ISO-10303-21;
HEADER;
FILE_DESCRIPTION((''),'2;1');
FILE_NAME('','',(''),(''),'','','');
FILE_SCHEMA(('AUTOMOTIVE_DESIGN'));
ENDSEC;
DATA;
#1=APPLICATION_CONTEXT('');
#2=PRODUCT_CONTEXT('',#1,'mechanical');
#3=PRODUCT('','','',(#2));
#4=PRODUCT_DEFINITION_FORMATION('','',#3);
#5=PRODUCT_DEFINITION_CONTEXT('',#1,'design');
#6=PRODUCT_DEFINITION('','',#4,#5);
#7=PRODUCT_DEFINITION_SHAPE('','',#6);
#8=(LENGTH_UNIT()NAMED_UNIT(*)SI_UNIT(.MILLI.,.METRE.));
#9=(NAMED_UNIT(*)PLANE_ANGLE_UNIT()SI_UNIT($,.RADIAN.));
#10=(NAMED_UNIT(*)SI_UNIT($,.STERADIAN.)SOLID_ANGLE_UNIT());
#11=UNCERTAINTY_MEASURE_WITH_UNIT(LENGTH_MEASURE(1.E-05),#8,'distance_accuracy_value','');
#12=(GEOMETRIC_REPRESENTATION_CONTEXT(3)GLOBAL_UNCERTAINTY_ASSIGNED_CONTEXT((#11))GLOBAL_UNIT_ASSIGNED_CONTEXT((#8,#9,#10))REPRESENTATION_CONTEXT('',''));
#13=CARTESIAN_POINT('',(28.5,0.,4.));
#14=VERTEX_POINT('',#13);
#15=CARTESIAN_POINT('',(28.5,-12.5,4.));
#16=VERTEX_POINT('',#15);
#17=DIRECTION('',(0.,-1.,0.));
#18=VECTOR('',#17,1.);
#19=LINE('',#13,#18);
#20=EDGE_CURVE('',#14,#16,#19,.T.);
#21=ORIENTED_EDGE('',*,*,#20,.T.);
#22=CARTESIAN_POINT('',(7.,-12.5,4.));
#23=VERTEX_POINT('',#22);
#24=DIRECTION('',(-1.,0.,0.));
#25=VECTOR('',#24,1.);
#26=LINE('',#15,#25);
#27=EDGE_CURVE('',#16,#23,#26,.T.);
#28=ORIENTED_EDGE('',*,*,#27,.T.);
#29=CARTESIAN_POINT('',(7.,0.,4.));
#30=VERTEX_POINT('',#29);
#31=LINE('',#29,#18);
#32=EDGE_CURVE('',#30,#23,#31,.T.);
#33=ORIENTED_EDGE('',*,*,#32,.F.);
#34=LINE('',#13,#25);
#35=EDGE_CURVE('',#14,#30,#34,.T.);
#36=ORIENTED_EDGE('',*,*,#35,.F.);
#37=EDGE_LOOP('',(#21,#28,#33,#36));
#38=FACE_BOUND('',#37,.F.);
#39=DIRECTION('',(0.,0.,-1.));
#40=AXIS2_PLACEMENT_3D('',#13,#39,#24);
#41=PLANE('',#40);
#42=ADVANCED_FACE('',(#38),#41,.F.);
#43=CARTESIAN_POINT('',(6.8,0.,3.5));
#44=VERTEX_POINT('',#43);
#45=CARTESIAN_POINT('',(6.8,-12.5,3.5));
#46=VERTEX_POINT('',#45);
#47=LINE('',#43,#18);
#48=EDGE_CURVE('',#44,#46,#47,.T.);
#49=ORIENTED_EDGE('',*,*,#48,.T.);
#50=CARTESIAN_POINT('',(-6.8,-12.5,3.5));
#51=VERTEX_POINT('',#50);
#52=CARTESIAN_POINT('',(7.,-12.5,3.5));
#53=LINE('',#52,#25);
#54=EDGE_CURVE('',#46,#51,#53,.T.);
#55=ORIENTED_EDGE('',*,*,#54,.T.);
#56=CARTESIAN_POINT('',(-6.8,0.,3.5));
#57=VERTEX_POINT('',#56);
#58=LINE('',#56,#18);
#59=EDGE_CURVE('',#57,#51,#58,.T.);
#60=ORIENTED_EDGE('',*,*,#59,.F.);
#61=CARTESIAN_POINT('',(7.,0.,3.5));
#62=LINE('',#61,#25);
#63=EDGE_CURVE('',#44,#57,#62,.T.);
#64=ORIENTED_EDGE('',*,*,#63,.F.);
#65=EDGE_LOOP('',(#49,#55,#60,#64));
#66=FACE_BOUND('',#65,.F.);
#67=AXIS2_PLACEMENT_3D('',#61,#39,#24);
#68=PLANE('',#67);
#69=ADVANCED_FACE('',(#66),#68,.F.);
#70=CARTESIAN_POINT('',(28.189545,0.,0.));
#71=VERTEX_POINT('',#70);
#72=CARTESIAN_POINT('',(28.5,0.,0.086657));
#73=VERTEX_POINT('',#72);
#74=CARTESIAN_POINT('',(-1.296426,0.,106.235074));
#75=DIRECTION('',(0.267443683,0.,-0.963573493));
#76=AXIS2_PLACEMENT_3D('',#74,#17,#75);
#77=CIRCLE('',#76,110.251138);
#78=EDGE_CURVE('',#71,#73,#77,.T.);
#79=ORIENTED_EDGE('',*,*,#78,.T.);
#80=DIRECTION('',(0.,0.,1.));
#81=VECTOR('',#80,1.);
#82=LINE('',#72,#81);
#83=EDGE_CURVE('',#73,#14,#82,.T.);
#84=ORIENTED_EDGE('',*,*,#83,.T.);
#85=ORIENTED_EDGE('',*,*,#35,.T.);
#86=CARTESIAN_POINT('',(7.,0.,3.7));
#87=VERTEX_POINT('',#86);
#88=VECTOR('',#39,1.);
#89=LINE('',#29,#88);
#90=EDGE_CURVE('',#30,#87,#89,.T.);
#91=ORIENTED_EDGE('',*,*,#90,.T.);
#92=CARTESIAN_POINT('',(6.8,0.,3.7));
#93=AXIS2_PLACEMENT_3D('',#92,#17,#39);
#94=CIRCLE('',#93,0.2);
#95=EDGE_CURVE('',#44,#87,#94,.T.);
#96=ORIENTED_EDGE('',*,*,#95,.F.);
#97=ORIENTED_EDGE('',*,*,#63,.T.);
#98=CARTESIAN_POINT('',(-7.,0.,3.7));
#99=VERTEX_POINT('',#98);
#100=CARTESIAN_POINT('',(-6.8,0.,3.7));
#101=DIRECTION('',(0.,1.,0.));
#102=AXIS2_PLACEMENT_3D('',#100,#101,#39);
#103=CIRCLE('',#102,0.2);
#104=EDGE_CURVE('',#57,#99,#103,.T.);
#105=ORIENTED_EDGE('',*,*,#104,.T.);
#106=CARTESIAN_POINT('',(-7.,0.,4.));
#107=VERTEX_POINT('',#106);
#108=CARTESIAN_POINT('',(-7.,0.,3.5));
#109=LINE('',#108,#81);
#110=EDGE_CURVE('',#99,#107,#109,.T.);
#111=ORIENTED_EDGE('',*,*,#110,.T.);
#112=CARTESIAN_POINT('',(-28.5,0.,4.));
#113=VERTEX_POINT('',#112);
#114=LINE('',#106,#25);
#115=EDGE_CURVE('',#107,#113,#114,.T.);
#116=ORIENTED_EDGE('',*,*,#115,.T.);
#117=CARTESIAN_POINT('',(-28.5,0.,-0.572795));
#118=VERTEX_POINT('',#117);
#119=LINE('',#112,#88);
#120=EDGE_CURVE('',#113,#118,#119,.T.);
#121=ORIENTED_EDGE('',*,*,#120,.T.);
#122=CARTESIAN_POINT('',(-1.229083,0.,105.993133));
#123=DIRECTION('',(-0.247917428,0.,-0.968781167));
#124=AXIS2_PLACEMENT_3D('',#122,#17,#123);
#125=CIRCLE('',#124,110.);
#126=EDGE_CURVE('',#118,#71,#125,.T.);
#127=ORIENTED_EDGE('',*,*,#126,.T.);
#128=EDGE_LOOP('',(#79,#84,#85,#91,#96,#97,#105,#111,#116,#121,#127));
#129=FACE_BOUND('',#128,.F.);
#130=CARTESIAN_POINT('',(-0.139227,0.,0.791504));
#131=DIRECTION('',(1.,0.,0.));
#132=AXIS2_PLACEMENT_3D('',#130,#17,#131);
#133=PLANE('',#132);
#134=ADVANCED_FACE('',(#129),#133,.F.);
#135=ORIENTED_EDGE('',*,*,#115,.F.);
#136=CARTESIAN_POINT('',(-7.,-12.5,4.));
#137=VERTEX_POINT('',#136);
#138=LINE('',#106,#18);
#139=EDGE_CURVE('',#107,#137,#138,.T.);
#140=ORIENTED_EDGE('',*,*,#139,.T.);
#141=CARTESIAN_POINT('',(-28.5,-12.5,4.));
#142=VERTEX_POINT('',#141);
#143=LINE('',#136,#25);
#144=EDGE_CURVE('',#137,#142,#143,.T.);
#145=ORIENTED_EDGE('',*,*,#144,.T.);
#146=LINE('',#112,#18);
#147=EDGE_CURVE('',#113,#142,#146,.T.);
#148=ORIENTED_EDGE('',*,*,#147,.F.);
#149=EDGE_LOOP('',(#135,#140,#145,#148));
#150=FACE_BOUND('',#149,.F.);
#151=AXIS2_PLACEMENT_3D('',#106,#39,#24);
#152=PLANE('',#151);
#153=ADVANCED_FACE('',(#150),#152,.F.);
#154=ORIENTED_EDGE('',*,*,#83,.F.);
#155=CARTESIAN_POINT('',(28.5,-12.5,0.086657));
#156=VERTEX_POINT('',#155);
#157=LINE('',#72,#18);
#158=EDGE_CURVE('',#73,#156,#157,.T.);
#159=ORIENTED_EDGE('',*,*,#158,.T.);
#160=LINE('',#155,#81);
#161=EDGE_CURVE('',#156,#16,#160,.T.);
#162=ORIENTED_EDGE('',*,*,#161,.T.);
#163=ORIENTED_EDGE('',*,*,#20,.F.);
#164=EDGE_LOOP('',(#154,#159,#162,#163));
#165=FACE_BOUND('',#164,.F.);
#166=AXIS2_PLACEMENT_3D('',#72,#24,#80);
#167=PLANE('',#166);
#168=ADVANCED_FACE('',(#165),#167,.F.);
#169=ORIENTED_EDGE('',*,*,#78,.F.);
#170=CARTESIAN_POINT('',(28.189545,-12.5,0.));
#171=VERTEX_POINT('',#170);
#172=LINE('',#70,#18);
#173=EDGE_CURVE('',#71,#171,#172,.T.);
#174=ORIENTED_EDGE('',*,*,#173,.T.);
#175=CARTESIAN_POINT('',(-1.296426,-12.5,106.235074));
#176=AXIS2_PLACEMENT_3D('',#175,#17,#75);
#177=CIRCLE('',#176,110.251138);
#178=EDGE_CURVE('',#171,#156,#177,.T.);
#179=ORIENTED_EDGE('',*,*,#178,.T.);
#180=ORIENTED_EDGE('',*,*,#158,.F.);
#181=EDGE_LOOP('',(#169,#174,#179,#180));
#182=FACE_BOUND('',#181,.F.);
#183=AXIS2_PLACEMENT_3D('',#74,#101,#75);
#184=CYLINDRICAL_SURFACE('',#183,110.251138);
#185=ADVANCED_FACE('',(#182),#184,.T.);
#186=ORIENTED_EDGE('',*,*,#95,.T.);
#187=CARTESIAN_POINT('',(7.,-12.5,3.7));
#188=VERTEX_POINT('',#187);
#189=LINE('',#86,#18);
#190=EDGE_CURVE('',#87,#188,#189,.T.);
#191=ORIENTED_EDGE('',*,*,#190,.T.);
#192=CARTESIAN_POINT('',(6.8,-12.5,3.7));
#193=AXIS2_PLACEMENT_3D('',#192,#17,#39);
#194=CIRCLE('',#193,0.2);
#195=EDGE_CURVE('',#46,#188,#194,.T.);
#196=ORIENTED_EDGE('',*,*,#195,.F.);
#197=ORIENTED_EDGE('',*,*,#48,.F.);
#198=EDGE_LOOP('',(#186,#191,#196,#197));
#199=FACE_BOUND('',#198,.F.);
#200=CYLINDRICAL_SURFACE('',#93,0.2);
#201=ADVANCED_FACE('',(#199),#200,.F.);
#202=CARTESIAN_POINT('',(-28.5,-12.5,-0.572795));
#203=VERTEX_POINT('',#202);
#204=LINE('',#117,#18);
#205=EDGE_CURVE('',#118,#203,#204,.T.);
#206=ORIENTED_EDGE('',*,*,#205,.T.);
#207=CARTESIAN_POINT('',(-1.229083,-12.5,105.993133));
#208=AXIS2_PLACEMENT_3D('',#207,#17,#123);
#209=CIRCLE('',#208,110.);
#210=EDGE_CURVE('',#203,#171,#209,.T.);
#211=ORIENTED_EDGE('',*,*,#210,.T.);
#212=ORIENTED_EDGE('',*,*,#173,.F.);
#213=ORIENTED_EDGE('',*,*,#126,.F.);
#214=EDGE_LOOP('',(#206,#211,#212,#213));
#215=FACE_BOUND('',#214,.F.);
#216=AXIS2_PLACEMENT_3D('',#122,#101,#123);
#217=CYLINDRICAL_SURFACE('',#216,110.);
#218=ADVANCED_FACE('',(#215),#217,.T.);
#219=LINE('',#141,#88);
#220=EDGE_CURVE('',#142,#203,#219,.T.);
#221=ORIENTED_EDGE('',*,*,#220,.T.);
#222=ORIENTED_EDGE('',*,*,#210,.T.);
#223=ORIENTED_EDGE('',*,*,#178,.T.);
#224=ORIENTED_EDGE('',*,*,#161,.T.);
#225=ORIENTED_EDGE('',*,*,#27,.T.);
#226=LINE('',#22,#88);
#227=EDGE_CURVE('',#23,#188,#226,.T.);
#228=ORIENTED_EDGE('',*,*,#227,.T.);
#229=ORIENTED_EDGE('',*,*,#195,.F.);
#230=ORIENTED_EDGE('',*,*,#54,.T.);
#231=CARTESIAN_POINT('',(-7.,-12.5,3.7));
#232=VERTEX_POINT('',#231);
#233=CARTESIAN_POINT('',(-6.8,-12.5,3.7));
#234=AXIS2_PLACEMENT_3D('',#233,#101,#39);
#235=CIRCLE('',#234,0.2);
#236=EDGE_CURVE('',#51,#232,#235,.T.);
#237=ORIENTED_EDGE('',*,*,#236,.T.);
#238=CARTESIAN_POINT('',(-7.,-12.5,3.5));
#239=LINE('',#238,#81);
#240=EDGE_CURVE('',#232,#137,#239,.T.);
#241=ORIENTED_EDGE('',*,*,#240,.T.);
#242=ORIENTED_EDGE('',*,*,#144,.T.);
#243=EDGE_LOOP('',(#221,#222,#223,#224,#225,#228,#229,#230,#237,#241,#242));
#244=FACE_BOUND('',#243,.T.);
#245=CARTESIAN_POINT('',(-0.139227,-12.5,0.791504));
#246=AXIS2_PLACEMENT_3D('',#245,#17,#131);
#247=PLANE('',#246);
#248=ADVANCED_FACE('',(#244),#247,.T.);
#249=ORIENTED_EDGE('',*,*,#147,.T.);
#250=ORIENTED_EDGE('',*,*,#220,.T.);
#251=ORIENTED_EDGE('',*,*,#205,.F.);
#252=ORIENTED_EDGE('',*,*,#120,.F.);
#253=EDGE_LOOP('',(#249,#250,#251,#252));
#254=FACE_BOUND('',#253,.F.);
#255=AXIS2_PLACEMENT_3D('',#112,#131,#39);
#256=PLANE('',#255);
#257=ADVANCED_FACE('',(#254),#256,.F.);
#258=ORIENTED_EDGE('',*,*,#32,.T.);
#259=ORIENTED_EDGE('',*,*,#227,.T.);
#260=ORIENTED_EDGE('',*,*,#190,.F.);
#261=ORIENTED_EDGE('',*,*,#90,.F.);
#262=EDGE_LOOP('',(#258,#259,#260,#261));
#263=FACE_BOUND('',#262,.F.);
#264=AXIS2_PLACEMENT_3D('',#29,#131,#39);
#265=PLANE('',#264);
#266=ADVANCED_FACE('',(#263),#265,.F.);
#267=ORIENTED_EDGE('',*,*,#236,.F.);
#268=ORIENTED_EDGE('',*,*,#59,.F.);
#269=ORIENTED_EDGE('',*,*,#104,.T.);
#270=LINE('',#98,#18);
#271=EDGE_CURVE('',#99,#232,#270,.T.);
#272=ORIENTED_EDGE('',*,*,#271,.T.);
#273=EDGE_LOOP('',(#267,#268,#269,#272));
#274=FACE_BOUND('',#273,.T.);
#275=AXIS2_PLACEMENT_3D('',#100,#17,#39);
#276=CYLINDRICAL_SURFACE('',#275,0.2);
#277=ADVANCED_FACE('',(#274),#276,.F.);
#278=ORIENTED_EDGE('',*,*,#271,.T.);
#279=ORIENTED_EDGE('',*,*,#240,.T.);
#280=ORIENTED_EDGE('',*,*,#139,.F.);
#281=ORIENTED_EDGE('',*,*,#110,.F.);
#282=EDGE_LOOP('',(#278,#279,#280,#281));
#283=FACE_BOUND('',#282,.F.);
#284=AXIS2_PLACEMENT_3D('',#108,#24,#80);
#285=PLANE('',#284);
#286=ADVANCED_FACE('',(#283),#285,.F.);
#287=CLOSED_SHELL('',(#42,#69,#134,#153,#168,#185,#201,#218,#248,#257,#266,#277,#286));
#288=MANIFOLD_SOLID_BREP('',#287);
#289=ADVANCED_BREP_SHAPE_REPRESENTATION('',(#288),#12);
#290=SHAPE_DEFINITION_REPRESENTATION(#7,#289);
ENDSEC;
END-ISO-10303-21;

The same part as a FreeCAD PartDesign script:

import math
import FreeCAD as App
import Part
import Sketcher
from FreeCAD import Vector
Q = App.Units.Quantity


def edges_at(feature, points):
    """Names of the edges that pass closest to the given points."""
    edges = feature.Shape.Edges
    near = lambda p: min(range(len(edges)), key=lambda i: edges[i].distToShape(Part.Vertex(*p))[0])
    return sorted({f"Edge{near(p) + 1}" for p in points})

doc = App.newDocument("Part")
body = doc.addObject("PartDesign::Body", "Body")

# Sketch on XZ plane
sketch1 = doc.addObject("Sketcher::SketchObject", "Sketch")
body.addObject(sketch1)
sketch1.AttachmentSupport = (doc.XZ_Plane, [""])
sketch1.MapMode = "FlatFace"
sketch1.addGeometry(Part.LineSegment(Vector(28.5, 4, 0), Vector(7, 4, 0)), False)
sketch1.addGeometry(Part.LineSegment(Vector(7, 4, 0), Vector(7, 3.5, 0)), False)
sketch1.addGeometry(Part.LineSegment(Vector(7, 3.5, 0), Vector(-7, 3.5, 0)), False)
sketch1.addGeometry(Part.LineSegment(Vector(-7, 3.5, 0), Vector(-7, 4, 0)), False)
sketch1.addGeometry(Part.LineSegment(Vector(-7, 4, 0), Vector(-28.5, 4, 0)), False)
sketch1.addGeometry(Part.LineSegment(Vector(-28.5, 4, 0), Vector(-28.5, -0.572795, 0)), False)
sketch1.addGeometry(Part.ArcOfCircle(Part.Circle(Vector(-1.229083, 105.993133, 0), Vector(0, 0, 1), 110), math.radians(-104.35431), math.radians(-74.487888)), False)
sketch1.addGeometry(Part.ArcOfCircle(Part.Circle(Vector(-1.296426, 106.235074, 0), Vector(0, 0, 1), 110.251138), math.radians(-74.487792), math.radians(-74.320286)), False)
sketch1.addGeometry(Part.LineSegment(Vector(28.5, 0.086657, 0), Vector(28.5, 4, 0)), False)
sketch1.addConstraint(Sketcher.Constraint("Coincident", 0, 2, 1, 1))
sketch1.addConstraint(Sketcher.Constraint("Coincident", 1, 2, 2, 1))
sketch1.addConstraint(Sketcher.Constraint("Coincident", 2, 2, 3, 1))
sketch1.addConstraint(Sketcher.Constraint("Coincident", 3, 2, 4, 1))
sketch1.addConstraint(Sketcher.Constraint("Coincident", 4, 2, 5, 1))
sketch1.addConstraint(Sketcher.Constraint("Coincident", 5, 2, 6, 1))
sketch1.addConstraint(Sketcher.Constraint("Coincident", 6, 2, 7, 1))
sketch1.addConstraint(Sketcher.Constraint("Coincident", 7, 2, 8, 1))
sketch1.addConstraint(Sketcher.Constraint("Coincident", 8, 2, 0, 1))
sketch1.addConstraint(Sketcher.Constraint("Horizontal", 0))
sketch1.addConstraint(Sketcher.Constraint("Vertical", 1))
sketch1.addConstraint(Sketcher.Constraint("Horizontal", 2))
sketch1.addConstraint(Sketcher.Constraint("Vertical", 3))
sketch1.addConstraint(Sketcher.Constraint("Horizontal", 4))
sketch1.addConstraint(Sketcher.Constraint("Vertical", 5))
sketch1.addConstraint(Sketcher.Constraint("Vertical", 8))
sketch1.addConstraint(Sketcher.Constraint("PointOnObject", 6, 2, -1))
sketch1.addConstraint(Sketcher.Constraint("Radius", 6, Q("110 mm")))
sketch1.addConstraint(Sketcher.Constraint("DistanceX", 2, 2, 2, 1, Q("14 mm")))
sketch1.addConstraint(Sketcher.Constraint("DistanceX", 0, 2, 0, 1, Q("21.5 mm")))
sketch1.addConstraint(Sketcher.Constraint("DistanceX", 4, 2, 4, 1, Q("21.5 mm")))
sketch1.addConstraint(Sketcher.Constraint("DistanceY", 1, 2, 1, 1, Q("0.5 mm")))
sketch1.addConstraint(Sketcher.Constraint("DistanceY", 3, 1, 3, 2, Q("0.5 mm")))
sketch1.addConstraint(Sketcher.Constraint("DistanceX", -1, 1, 0, 2, Q("7 mm")))
sketch1.addConstraint(Sketcher.Constraint("DistanceY", -1, 1, 0, 2, Q("4 mm")))
sketch1.addConstraint(Sketcher.Constraint("Radius", 7, Q("110.251138 mm")))
sketch1.addConstraint(Sketcher.Constraint("DistanceY", 5, 2, 5, 1, Q("4.572795 mm")))
sketch1.addConstraint(Sketcher.Constraint("DistanceY", 8, 1, 8, 2, Q("3.913343 mm")))
sketch1.addConstraint(Sketcher.Constraint("DistanceY", 6, 3, 7, 3, Q("0.241942 mm")))
pad1 = doc.addObject("PartDesign::Pad", "Pad")
body.addObject(pad1)
pad1.Profile = sketch1
pad1.Length = 12.5
doc.recompute()

fillet = doc.addObject("PartDesign::Fillet", "Fillet")
body.addObject(fillet)
fillet.Base = (pad1, edges_at(pad1, [(-7, -6.25, 3.5)]))
fillet.Radius = 0.2
doc.recompute()

fillet2 = doc.addObject("PartDesign::Fillet", "Fillet001")
body.addObject(fillet2)
fillet2.Base = (fillet, edges_at(fillet, [(7, -6.25, 3.5)]))
fillet2.Radius = 0.2

doc.recompute()
